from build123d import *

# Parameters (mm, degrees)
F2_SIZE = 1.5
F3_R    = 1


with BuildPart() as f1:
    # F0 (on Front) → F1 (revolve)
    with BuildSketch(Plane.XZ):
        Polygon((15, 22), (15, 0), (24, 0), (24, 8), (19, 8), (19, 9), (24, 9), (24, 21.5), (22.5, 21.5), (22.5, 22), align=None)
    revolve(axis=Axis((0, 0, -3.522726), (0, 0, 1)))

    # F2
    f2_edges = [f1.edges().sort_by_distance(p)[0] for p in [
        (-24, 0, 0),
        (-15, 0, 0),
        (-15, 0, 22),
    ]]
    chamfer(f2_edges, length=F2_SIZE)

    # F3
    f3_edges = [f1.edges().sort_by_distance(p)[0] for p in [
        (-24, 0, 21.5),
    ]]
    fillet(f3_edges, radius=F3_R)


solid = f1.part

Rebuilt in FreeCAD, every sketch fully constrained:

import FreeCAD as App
import Part
import Sketcher

V = App.Vector
Q = App.Units.Quantity


def edges_at(feature, points):
    """Names of the edges that pass closest to the given points."""
    edges = feature.Shape.Edges
    near = lambda p: min(range(len(edges)), key=lambda i: edges[i].distToShape(Part.Vertex(*p))[0])
    return sorted({f"Edge{near(p) + 1}" for p in points})

doc = App.newDocument("Part")
body = doc.addObject("PartDesign::Body", "Body")

# Sketch on XZ plane
sketch1 = body.newObject("Sketcher::SketchObject", "Sketch")
sketch1.AttachmentSupport = (doc.getObject("XZ_Plane"), [""])
sketch1.MapMode = "FlatFace"
sketch1.addGeometry([
    Part.LineSegment(V(15, 22, 0), V(15, 0, 0)),  # 0
    Part.LineSegment(V(15, 0, 0), V(24, 0, 0)),  # 1
    Part.LineSegment(V(24, 0, 0), V(24, 8, 0)),  # 2
    Part.LineSegment(V(24, 8, 0), V(19, 8, 0)),  # 3
    Part.LineSegment(V(19, 8, 0), V(19, 9, 0)),  # 4
    Part.LineSegment(V(19, 9, 0), V(24, 9, 0)),  # 5
    Part.LineSegment(V(24, 9, 0), V(24, 21.5, 0)),  # 6
    Part.LineSegment(V(24, 21.5, 0), V(22.5, 21.5, 0)),  # 7
    Part.LineSegment(V(22.5, 21.5, 0), V(22.5, 22, 0)),  # 8
    Part.LineSegment(V(22.5, 22, 0), V(15, 22, 0)),  # 9
], False)
sketch1.addConstraint([
    Sketcher.Constraint("Coincident", 0, 2, 1, 1),
    Sketcher.Constraint("Coincident", 1, 2, 2, 1),
    Sketcher.Constraint("Coincident", 2, 2, 3, 1),
    Sketcher.Constraint("Coincident", 3, 2, 4, 1),
    Sketcher.Constraint("Coincident", 4, 2, 5, 1),
    Sketcher.Constraint("Coincident", 5, 2, 6, 1),
    Sketcher.Constraint("Coincident", 6, 2, 7, 1),
    Sketcher.Constraint("Coincident", 7, 2, 8, 1),
    Sketcher.Constraint("Coincident", 8, 2, 9, 1),
    Sketcher.Constraint("Coincident", 9, 2, 0, 1),
    Sketcher.Constraint("Vertical", 0),
    Sketcher.Constraint("Horizontal", 1),
    Sketcher.Constraint("Vertical", 2),
    Sketcher.Constraint("Horizontal", 3),
    Sketcher.Constraint("Vertical", 4),
    Sketcher.Constraint("Horizontal", 5),
    Sketcher.Constraint("Vertical", 6),
    Sketcher.Constraint("Horizontal", 7),
    Sketcher.Constraint("Vertical", 8),
    Sketcher.Constraint("Horizontal", 9),
    Sketcher.Constraint("PointOnObject", 0, 2, -1),
    Sketcher.Constraint("Vertical", 2, 2, 5, 2),
    Sketcher.Constraint("DistanceX", 1, 1, 1, 2, Q("9 mm")),
    Sketcher.Constraint("DistanceX", 3, 2, 3, 1, Q("5 mm")),
    Sketcher.Constraint("DistanceY", 0, 2, 0, 1, Q("22 mm")),
    Sketcher.Constraint("DistanceY", 2, 1, 2, 2, Q("8 mm")),
    Sketcher.Constraint("DistanceY", 4, 1, 4, 2, Q("1 mm")),
    Sketcher.Constraint("DistanceX", 7, 2, 7, 1, Q("1.5 mm")),
    Sketcher.Constraint("DistanceY", 6, 1, 6, 2, Q("12.5 mm")),
    Sketcher.Constraint("DistanceX", -1, 1, 0, 2, Q("15 mm")),
])
revolution = body.newObject("PartDesign::Revolution", "Revolution")
revolution.Profile = sketch1
revolution.ReferenceAxis = (sketch1, ["V_Axis"])
revolution.Angle = 360
doc.recompute()

chamfer = body.newObject("PartDesign::Chamfer", "Chamfer")
chamfer.Base = (revolution, edges_at(revolution, [(-24, 0, 0), (-15, 0, 0), (-15, 0, 22)]))
chamfer.Size = 1.5
doc.recompute()

fillet = body.newObject("PartDesign::Fillet", "Fillet")
fillet.Base = (chamfer, edges_at(chamfer, [(-24, 0, 21.5)]))
fillet.Radius = 1

doc.recompute()
